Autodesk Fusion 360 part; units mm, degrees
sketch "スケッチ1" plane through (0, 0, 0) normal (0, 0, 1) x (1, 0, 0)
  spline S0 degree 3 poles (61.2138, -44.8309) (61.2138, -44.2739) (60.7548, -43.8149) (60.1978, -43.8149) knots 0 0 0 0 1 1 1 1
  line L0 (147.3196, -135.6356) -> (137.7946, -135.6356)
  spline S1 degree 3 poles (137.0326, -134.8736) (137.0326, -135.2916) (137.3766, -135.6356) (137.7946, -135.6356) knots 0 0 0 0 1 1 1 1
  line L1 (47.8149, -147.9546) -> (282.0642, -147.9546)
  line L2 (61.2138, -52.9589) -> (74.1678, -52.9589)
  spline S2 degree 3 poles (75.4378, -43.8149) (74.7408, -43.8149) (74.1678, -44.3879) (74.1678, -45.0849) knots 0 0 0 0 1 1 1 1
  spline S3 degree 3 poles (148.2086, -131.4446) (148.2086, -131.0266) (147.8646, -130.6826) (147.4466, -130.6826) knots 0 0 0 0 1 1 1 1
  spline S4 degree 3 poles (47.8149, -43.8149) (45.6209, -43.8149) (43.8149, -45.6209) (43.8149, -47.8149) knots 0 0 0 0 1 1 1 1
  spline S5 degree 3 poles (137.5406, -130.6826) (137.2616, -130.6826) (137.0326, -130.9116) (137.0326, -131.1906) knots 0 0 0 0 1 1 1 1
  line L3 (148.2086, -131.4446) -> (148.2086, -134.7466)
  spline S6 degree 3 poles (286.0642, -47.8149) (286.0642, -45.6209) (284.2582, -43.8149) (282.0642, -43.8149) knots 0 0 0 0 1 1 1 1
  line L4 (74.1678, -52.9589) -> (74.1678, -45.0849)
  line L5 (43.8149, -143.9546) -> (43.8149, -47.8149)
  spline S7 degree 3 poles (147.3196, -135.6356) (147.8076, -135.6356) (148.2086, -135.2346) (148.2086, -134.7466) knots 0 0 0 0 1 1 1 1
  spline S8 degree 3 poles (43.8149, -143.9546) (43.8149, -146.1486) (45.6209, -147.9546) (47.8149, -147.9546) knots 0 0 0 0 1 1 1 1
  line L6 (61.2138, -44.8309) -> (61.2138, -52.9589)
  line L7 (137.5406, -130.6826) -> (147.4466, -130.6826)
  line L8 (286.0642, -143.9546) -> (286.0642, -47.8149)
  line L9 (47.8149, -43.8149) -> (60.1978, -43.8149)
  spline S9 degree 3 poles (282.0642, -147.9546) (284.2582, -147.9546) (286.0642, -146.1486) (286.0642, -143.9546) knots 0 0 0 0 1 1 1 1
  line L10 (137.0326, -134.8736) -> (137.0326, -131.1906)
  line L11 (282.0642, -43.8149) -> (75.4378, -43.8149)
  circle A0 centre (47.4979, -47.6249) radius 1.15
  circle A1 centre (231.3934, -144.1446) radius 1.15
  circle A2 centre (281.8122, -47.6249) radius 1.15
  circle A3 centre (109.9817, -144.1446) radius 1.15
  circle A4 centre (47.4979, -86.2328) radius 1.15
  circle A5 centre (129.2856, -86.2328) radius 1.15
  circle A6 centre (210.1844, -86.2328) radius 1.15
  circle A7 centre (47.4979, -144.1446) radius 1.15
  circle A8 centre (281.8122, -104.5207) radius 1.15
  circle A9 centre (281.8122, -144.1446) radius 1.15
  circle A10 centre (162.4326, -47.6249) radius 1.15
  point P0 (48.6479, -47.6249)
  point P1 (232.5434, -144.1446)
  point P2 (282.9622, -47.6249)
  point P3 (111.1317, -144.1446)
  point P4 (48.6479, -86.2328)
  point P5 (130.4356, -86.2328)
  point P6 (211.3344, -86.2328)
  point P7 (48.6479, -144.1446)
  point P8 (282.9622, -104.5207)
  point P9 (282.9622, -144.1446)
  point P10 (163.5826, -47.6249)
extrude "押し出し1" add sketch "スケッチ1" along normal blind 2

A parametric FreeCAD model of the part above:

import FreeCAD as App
import Part
import Sketcher
from FreeCAD import Vector
Q = App.Units.Quantity

doc = App.newDocument("Part")
params = doc.addObject("Spreadsheet::Sheet", "Params")
for row, (alias, value) in enumerate([
    ("sketch1_height", "0.32 in"),
    ("pad1_length", "2 mm"),
], start=1):
    params.set(f"A{row}", alias)
    params.set(f"B{row}", "=" + value)
    params.setAlias(f"B{row}", alias)

body = doc.addObject("PartDesign::Body", "Body")

# Sketch on XY plane
sketch1 = body.newObject("Sketcher::SketchObject", "Sketch")
sketch1.AttachmentSupport = (doc.getObject("XY_Plane"), [""])
sketch1.MapMode = "FlatFace"
sketch1.addGeometry(Part.LineSegment(Vector(61.2138, -52.9589, 0), Vector(61.2138, -44.8309, 0)), False)
sketch1.addGeometry(Part.BSplineCurve([Vector(61.2138, -44.8309, 0), Vector(61.2138, -44.2739, 0), Vector(60.7548, -43.8149, 0), Vector(60.1978, -43.8149, 0)], [4, 4], [0, 1], False, 3, [1, 1, 1, 1], False), False)
sketch1.addGeometry(Part.LineSegment(Vector(60.1978, -43.8149, 0), Vector(47.8149, -43.8149, 0)), False)
sketch1.addGeometry(Part.BSplineCurve([Vector(47.8149, -43.8149, 0), Vector(45.6209, -43.8149, 0), Vector(43.8149, -45.6209, 0), Vector(43.8149, -47.8149, 0)], [4, 4], [0, 1], False, 3, [1, 1, 1, 1], False), False)
sketch1.addGeometry(Part.LineSegment(Vector(43.8149, -47.8149, 0), Vector(43.8149, -143.9546, 0)), False)
sketch1.addGeometry(Part.BSplineCurve([Vector(43.8149, -143.9546, 0), Vector(43.8149, -146.1486, 0), Vector(45.6209, -147.9546, 0), Vector(47.8149, -147.9546, 0)], [4, 4], [0, 1], False, 3, [1, 1, 1, 1], False), False)
sketch1.addGeometry(Part.LineSegment(Vector(47.8149, -147.9546, 0), Vector(282.0642, -147.9546, 0)), False)
sketch1.addGeometry(Part.BSplineCurve([Vector(282.0642, -147.9546, 0), Vector(284.2582, -147.9546, 0), Vector(286.0642, -146.1486, 0), Vector(286.0642, -143.9546, 0)], [4, 4], [0, 1], False, 3, [1, 1, 1, 1], False), False)
sketch1.addGeometry(Part.LineSegment(Vector(286.0642, -143.9546, 0), Vector(286.0642, -47.8149, 0)), False)
sketch1.addGeometry(Part.BSplineCurve([Vector(286.0642, -47.8149, 0), Vector(286.0642, -45.6209, 0), Vector(284.2582, -43.8149, 0), Vector(282.0642, -43.8149, 0)], [4, 4], [0, 1], False, 3, [1, 1, 1, 1], False), False)
sketch1.addGeometry(Part.LineSegment(Vector(282.0642, -43.8149, 0), Vector(75.4378, -43.8149, 0)), False)
sketch1.addGeometry(Part.BSplineCurve([Vector(75.4378, -43.8149, 0), Vector(74.7408, -43.8149, 0), Vector(74.1678, -44.3879, 0), Vector(74.1678, -45.0849, 0)], [4, 4], [0, 1], False, 3, [1, 1, 1, 1], False), False)
sketch1.addGeometry(Part.LineSegment(Vector(74.1678, -45.0849, 0), Vector(74.1678, -52.9589, 0)), False)
sketch1.addGeometry(Part.LineSegment(Vector(74.1678, -52.9589, 0), Vector(61.2138, -52.9589, 0)), False)
sketch1.addGeometry(Part.Circle(Vector(47.4979, -144.1446, 0), Vector(0, 0, 1), 1.15), False)
sketch1.addGeometry(Part.Circle(Vector(109.9817, -144.1446, 0), Vector(0, 0, 1), 1.15), False)
sketch1.addGeometry(Part.BSplineCurve([Vector(147.3196, -135.6356, 0), Vector(147.8076, -135.6356, 0), Vector(148.2086, -135.2346, 0), Vector(148.2086, -134.7466, 0)], [4, 4], [0, 1], False, 3, [1, 1, 1, 1], False), False)
sketch1.addGeometry(Part.LineSegment(Vector(147.3196, -135.6356, 0), Vector(137.7946, -135.6356, 0)), False)
sketch1.addGeometry(Part.BSplineCurve([Vector(137.0326, -134.8736, 0), Vector(137.0326, -135.2916, 0), Vector(137.3766, -135.6356, 0), Vector(137.7946, -135.6356, 0)], [4, 4], [0, 1], False, 3, [1, 1, 1, 1], False), False)
sketch1.addGeometry(Part.LineSegment(Vector(137.0326, -134.8736, 0), Vector(137.0326, -131.1906, 0)), False)
sketch1.addGeometry(Part.BSplineCurve([Vector(137.5406, -130.6826, 0), Vector(137.2616, -130.6826, 0), Vector(137.0326, -130.9116, 0), Vector(137.0326, -131.1906, 0)], [4, 4], [0, 1], False, 3, [1, 1, 1, 1], False), False)
sketch1.addGeometry(Part.LineSegment(Vector(137.5406, -130.6826, 0), Vector(147.4466, -130.6826, 0)), False)
sketch1.addGeometry(Part.BSplineCurve([Vector(148.2086, -131.4446, 0), Vector(148.2086, -131.0266, 0), Vector(147.8646, -130.6826, 0), Vector(147.4466, -130.6826, 0)], [4, 4], [0, 1], False, 3, [1, 1, 1, 1], False), False)
sketch1.addGeometry(Part.LineSegment(Vector(148.2086, -131.4446, 0), Vector(148.2086, -134.7466, 0)), False)
sketch1.addGeometry(Part.Circle(Vector(231.3934, -144.1446, 0), Vector(0, 0, 1), 1.15), False)
sketch1.addGeometry(Part.Circle(Vector(281.8122, -144.1446, 0), Vector(0, 0, 1), 1.15), False)
sketch1.addGeometry(Part.Circle(Vector(281.8122, -104.5207, 0), Vector(0, 0, 1), 1.15), False)
sketch1.addGeometry(Part.Circle(Vector(47.4979, -86.2328, 0), Vector(0, 0, 1), 1.15), False)
sketch1.addGeometry(Part.Circle(Vector(129.2856, -86.2328, 0), Vector(0, 0, 1), 1.15), False)
sketch1.addGeometry(Part.Circle(Vector(47.4979, -47.6249, 0), Vector(0, 0, 1), 1.15), False)
sketch1.addGeometry(Part.Circle(Vector(162.4326, -47.6249, 0), Vector(0, 0, 1), 1.15), False)
sketch1.addGeometry(Part.Circle(Vector(210.1844, -86.2328, 0), Vector(0, 0, 1), 1.15), False)
sketch1.addGeometry(Part.Circle(Vector(281.8122, -47.6249, 0), Vector(0, 0, 1), 1.15), False)
sketch1.addConstraint(Sketcher.Constraint("Block", 1))
sketch1.addConstraint(Sketcher.Constraint("Block", 3))
sketch1.addConstraint(Sketcher.Constraint("Block", 5))
sketch1.addConstraint(Sketcher.Constraint("Block", 7))
sketch1.addConstraint(Sketcher.Constraint("Block", 9))
sketch1.addConstraint(Sketcher.Constraint("Block", 11))
sketch1.addConstraint(Sketcher.Constraint("Block", 16))
sketch1.addConstraint(Sketcher.Constraint("Block", 18))
sketch1.addConstraint(Sketcher.Constraint("Block", 20))
sketch1.addConstraint(Sketcher.Constraint("Block", 22))
sketch1.addConstraint(Sketcher.Constraint("Coincident", 0, 2, 1, 1))
sketch1.addConstraint(Sketcher.Constraint("Coincident", 1, 2, 2, 1))
sketch1.addConstraint(Sketcher.Constraint("Coincident", 2, 2, 3, 1))
sketch1.addConstraint(Sketcher.Constraint("Coincident", 3, 2, 4, 1))
sketch1.addConstraint(Sketcher.Constraint("Coincident", 4, 2, 5, 1))
sketch1.addConstraint(Sketcher.Constraint("Coincident", 5, 2, 6, 1))
sketch1.addConstraint(Sketcher.Constraint("Coincident", 6, 2, 7, 1))
sketch1.addConstraint(Sketcher.Constraint("Coincident", 7, 2, 8, 1))
sketch1.addConstraint(Sketcher.Constraint("Coincident", 8, 2, 9, 1))
sketch1.addConstraint(Sketcher.Constraint("Coincident", 9, 2, 10, 1))
sketch1.addConstraint(Sketcher.Constraint("Coincident", 10, 2, 11, 1))
sketch1.addConstraint(Sketcher.Constraint("Coincident", 11, 2, 12, 1))
sketch1.addConstraint(Sketcher.Constraint("Coincident", 12, 2, 13, 1))
sketch1.addConstraint(Sketcher.Constraint("Coincident", 13, 2, 0, 1))
sketch1.addConstraint(Sketcher.Constraint("Coincident", 16, 1, 17, 1))
sketch1.addConstraint(Sketcher.Constraint("Coincident", 17, 2, 18, 2))
sketch1.addConstraint(Sketcher.Constraint("Coincident", 18, 1, 19, 1))
sketch1.addConstraint(Sketcher.Constraint("Coincident", 19, 2, 20, 2))
sketch1.addConstraint(Sketcher.Constraint("Coincident", 20, 1, 21, 1))
sketch1.addConstraint(Sketcher.Constraint("Coincident", 21, 2, 22, 2))
sketch1.addConstraint(Sketcher.Constraint("Coincident", 22, 1, 23, 1))
sketch1.addConstraint(Sketcher.Constraint("Coincident", 23, 2, 16, 2))
sketch1.addConstraint(Sketcher.Constraint("Vertical", 0))
sketch1.addConstraint(Sketcher.Constraint("Vertical", 12))
sketch1.addConstraint(Sketcher.Constraint("Horizontal", 13))
sketch1.addConstraint(Sketcher.Constraint("Equal", 14, 15))
sketch1.addConstraint(Sketcher.Constraint("Equal", 15, 24))
sketch1.addConstraint(Sketcher.Constraint("Equal", 24, 25))
sketch1.addConstraint(Sketcher.Constraint("Equal", 25, 26))
sketch1.addConstraint(Sketcher.Constraint("Equal", 26, 27))
sketch1.addConstraint(Sketcher.Constraint("Equal", 27, 28))
sketch1.addConstraint(Sketcher.Constraint("Equal", 28, 29))
sketch1.addConstraint(Sketcher.Constraint("Equal", 29, 30))
sketch1.addConstraint(Sketcher.Constraint("Equal", 30, 31))
sketch1.addConstraint(Sketcher.Constraint("Equal", 31, 32))
sketch1.addConstraint(Sketcher.Constraint("Horizontal", 14, 3, 15, 3))
sketch1.addConstraint(Sketcher.Constraint("Horizontal", 15, 3, 24, 3))
sketch1.addConstraint(Sketcher.Constraint("Horizontal", 24, 3, 25, 3))
sketch1.addConstraint(Sketcher.Constraint("Horizontal", 27, 3, 28, 3))
sketch1.addConstraint(Sketcher.Constraint("Horizontal", 29, 3, 30, 3))
sketch1.addConstraint(Sketcher.Constraint("Horizontal", 28, 3, 31, 3))
sketch1.addConstraint(Sketcher.Constraint("Horizontal", 30, 3, 32, 3))
sketch1.addConstraint(Sketcher.Constraint("Vertical", 25, 3, 26, 3))
sketch1.addConstraint(Sketcher.Constraint("Vertical", 14, 3, 27, 3))
sketch1.addConstraint(Sketcher.Constraint("Vertical", 27, 3, 29, 3))
sketch1.addConstraint(Sketcher.Constraint("Vertical", 26, 3, 32, 3))
sketch1.addConstraint(Sketcher.Constraint("DistanceX", 19, 2, 30, 3, Q("1 in")))
sketch1.addConstraint(Sketcher.Constraint("DistanceY", 0, 1, 0, 2, Q("0.32 in")))
sketch1.addConstraint(Sketcher.Constraint("DistanceY", 14, 3, 29, 3, Q("3.8 in")))
sketch1.addConstraint(Sketcher.Constraint("DistanceX", 29, 3, 10, 2, Q("1.1 in")))
sketch1.addConstraint(Sketcher.Constraint("Diameter", 14, Q("2.3 mm")))
sketch1.addConstraint(Sketcher.Constraint("DistanceX", -1, 1, 15, 3, Q("4.33 in")))
sketch1.addConstraint(Sketcher.Constraint("DistanceX", 15, 3, 24, 3, Q("4.78 in")))
sketch1.addConstraint(Sketcher.Constraint("DistanceY", 25, 3, 26, 3, Q("1.56 in")))
sketch1.addConstraint(Sketcher.Constraint("DistanceY", 14, 3, 27, 3, Q("2.28 in")))
sketch1.addConstraint(Sketcher.Constraint("DistanceX", 15, 3, 28, 3, Q("0.76 in")))
sketch1.addConstraint(Sketcher.Constraint("DistanceX", 30, 3, 31, 3, Q("1.88 in")))
sketch1.addConstraint(Sketcher.Constraint("DistanceX", 31, 3, 26, 3, Q("2.82 in")))
sketch1.addConstraint(Sketcher.Constraint("DistanceY", 29, 3, 0, 2, Q("0.11 in")))
sketch1.setExpression("Constraints[57]", "Params.sketch1_height")
pad1 = body.newObject("PartDesign::Pad", "Pad")
pad1.Profile = sketch1
pad1.setExpression("Length", "Params.pad1_length")

doc.recompute()
